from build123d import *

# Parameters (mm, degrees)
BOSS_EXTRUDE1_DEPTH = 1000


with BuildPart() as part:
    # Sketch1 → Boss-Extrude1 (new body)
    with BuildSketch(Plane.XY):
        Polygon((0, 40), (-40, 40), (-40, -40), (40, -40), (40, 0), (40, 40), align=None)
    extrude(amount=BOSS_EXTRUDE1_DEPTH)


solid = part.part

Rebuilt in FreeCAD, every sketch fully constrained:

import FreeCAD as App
import Part
import Sketcher

V = App.Vector


def add_polygon(sketch, points):
    """Adds a closed chain of lines whose ends are joined by coincident constraints."""
    first, n = sketch.GeometryCount, len(points)
    for a, b in zip(points, points[1:] + points[:1]):
        sketch.addGeometry(Part.LineSegment(App.Vector(*a, 0), App.Vector(*b, 0)), False)
    for i in range(n):
        sketch.addConstraint(Sketcher.Constraint("Coincident", first + i, 2, first + (i + 1) % n, 1))

doc = App.newDocument("Part")
body = doc.addObject("PartDesign::Body", "Body")

sketch1 = body.newObject("Sketcher::SketchObject", "Sketch")
sketch1.AttachmentSupport = (doc.getObject("XY_Plane"), [""])
sketch1.MapMode = "FlatFace"
add_polygon(sketch1, [(-40, 40), (-40, -40), (40, -40), (40, 40)])
sketch1.addConstraint([
    Sketcher.Constraint("Vertical", 0),
    Sketcher.Constraint("Horizontal", 1),
    Sketcher.Constraint("Vertical", 2),
    Sketcher.Constraint("Horizontal", 3),
    Sketcher.Constraint("Symmetric", 0, 2, 2, 2, -1, 1),
    Sketcher.Constraint("Equal", 3, 0),
    Sketcher.Constraint("DistanceX", 1, 1, 1, 2, 80.0),
])
pad1 = body.newObject("PartDesign::Pad", "Pad")
pad1.Profile = sketch1
pad1.Length = 1000

doc.recompute()
